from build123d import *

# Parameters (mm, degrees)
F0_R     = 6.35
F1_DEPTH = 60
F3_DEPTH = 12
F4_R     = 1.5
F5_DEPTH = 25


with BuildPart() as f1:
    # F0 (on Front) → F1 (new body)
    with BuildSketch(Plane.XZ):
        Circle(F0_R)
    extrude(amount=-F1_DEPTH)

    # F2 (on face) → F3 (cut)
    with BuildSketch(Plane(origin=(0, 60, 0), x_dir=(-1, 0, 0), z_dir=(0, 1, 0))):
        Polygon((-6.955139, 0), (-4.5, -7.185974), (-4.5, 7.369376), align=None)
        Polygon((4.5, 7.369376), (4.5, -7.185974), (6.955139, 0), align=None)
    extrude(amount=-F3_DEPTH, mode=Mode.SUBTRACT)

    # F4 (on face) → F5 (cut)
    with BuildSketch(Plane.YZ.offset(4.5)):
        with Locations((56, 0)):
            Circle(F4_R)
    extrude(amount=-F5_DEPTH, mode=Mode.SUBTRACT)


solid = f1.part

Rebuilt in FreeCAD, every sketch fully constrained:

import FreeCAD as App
import Part
import Sketcher
from FreeCAD import Vector


def add_polygon(sketch, points):
    """Adds a closed chain of lines whose ends are joined by coincident constraints."""
    first, n = sketch.GeometryCount, len(points)
    for a, b in zip(points, points[1:] + points[:1]):
        sketch.addGeometry(Part.LineSegment(App.Vector(*a, 0), App.Vector(*b, 0)), False)
    for i in range(n):
        sketch.addConstraint(Sketcher.Constraint("Coincident", first + i, 2, first + (i + 1) % n, 1))

doc = App.newDocument("Part")
body = doc.addObject("PartDesign::Body", "Body")

# Sketch on XZ plane
sketch1 = body.newObject("Sketcher::SketchObject", "Sketch")
sketch1.AttachmentSupport = (doc.getObject("XZ_Plane"), [""])
sketch1.MapMode = "FlatFace"
sketch1.addGeometry(Part.Circle(Vector(0, 0, 0), Vector(0, 0, 1), 6), False)
sketch1.addConstraint([
    Sketcher.Constraint("Coincident", 0, 3, -1, 1),
    Sketcher.Constraint("Diameter", 0, 12.7),
])
pad1 = body.newObject("PartDesign::Pad", "Pad")
pad1.Profile = sketch1
pad1.Length = 60
pad1.Reversed = True

# Sketch on XZ plane
sketch2 = body.newObject("Sketcher::SketchObject", "Sketch001")
sketch2.AttachmentSupport = (doc.getObject("XZ_Plane"), [""])
sketch2.MapMode = "FlatFace"
sketch2.AttachmentOffset = App.Placement(Vector(0, 0, -60), App.Rotation())
add_polygon(sketch2, [(7, 0), (4, -7), (4, 7)])  # lines 0-2
add_polygon(sketch2, [(-4, 7), (-4, -7), (-7, 0)])  # lines 3-5
sketch2.addConstraint([
    Sketcher.Constraint("Vertical", 1),
    Sketcher.Constraint("Vertical", 3),
    Sketcher.Constraint("Symmetric", 2, 2, 4, 2, -1, 1),
    Sketcher.Constraint("Symmetric", 0, 2, 3, 2, -2),
    Sketcher.Constraint("PointOnObject", 2, 2, -1),
    Sketcher.Constraint("Horizontal", 1, 2, 5, 2),
    Sketcher.Constraint("DistanceX", 3, 2, 0, 2, 9.0),
    Sketcher.Constraint("DistanceY", 1, 1, 1, 2, 14.55535),
    Sketcher.Constraint("Distance", 0, 7.593809),
    Sketcher.Constraint("DistanceX", -1, 1, 2, 2, 6.955139),
])
pocket1 = body.newObject("PartDesign::Pocket", "Pocket")
pocket1.Profile = sketch2
pocket1.Length = 12
pocket1.Reversed = True

# Sketch on YZ plane
sketch3 = body.newObject("Sketcher::SketchObject", "Sketch002")
sketch3.AttachmentSupport = (doc.getObject("YZ_Plane"), [""])
sketch3.MapMode = "FlatFace"
sketch3.AttachmentOffset = App.Placement(Vector(0, 0, 4.5), App.Rotation())
sketch3.addGeometry(Part.Circle(Vector(56, 0, 0), Vector(0, 0, 1), 1.5), False)
sketch3.addConstraint([
    Sketcher.Constraint("PointOnObject", 0, 3, -1),
    Sketcher.Constraint("Diameter", 0, 3.0),
    Sketcher.Constraint("DistanceX", -1, 1, 0, 3, 56.0),
])
pocket2 = body.newObject("PartDesign::Pocket", "Pocket001")
pocket2.Profile = sketch3
pocket2.Length = 25

doc.recompute()
